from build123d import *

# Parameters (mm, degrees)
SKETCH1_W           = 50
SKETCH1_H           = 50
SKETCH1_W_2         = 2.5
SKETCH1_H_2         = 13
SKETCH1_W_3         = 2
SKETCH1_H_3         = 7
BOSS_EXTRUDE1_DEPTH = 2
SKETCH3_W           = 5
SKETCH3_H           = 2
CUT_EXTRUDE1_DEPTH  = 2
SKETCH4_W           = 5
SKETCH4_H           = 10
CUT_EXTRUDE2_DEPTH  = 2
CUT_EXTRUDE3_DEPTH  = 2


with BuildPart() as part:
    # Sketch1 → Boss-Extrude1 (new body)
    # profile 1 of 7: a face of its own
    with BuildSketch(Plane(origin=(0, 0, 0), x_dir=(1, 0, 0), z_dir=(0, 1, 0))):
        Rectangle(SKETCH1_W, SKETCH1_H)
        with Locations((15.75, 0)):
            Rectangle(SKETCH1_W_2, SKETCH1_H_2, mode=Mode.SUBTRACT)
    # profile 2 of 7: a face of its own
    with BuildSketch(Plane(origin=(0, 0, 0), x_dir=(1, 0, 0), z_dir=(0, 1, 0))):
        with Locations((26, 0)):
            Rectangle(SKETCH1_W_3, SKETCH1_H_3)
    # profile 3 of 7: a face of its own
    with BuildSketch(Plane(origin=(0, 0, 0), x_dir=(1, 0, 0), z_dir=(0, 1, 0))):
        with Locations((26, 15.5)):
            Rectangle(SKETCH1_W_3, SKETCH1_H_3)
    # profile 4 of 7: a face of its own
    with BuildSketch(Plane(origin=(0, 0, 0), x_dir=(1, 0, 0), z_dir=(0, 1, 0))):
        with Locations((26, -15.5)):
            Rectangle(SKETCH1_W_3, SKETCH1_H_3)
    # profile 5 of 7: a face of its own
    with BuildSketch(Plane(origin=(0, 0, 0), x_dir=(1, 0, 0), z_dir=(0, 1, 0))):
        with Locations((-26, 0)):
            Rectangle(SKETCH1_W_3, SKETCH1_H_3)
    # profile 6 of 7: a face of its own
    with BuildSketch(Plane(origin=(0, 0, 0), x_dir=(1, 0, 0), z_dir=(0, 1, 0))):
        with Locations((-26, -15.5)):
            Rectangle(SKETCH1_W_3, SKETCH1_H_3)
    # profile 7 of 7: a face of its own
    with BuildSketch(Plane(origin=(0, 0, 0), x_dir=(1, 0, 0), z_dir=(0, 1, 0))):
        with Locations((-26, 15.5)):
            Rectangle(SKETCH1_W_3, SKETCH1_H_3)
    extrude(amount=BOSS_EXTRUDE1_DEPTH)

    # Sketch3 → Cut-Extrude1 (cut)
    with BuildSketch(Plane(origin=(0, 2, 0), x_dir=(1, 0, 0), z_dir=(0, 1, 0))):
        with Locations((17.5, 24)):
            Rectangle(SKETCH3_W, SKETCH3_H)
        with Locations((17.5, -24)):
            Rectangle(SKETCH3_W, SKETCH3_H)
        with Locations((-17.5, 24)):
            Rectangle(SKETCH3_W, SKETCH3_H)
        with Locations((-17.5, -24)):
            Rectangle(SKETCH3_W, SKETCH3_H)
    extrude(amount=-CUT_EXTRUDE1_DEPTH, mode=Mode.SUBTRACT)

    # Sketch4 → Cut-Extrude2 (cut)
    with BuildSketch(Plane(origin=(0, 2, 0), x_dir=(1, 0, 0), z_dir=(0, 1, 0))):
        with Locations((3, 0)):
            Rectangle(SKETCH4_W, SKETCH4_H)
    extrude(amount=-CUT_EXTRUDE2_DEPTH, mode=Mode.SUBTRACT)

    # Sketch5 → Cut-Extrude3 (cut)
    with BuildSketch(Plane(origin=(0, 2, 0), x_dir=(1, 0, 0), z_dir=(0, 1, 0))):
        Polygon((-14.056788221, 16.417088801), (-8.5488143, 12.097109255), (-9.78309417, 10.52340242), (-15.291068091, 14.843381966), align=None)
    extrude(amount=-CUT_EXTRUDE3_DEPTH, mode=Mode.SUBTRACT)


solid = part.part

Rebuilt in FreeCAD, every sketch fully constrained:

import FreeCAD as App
import Part
import Sketcher

V = App.Vector
Q = App.Units.Quantity

doc = App.newDocument("Part")
params = doc.addObject("Spreadsheet::Sheet", "Params")
for row, (alias, value) in enumerate([
    ("sketch1_width", "50 mm"),
    ("sketch1_width2", "2 mm"),
    ("sketch1_height", "6 mm"),
    ("sketch1_height2", "7 mm"),
    ("sketch1_height3", "13 mm"),
    ("pad1_length", "2 mm"),
    ("sketch2_width", "5 mm"),
    ("sketch2_height", "2 mm"),
    ("pocket1_length", "2 mm"),
    ("sketch3_width", "5 mm"),
    ("sketch3_height", "10 mm"),
    ("pocket2_length", "2 mm"),
    ("sketch4_length", "7 mm"),
    ("sketch4_length2", "2 mm"),
    ("pocket3_length", "2 mm"),
], start=1):
    params.set(f"A{row}", alias)
    params.set(f"B{row}", "=" + value)
    params.setAlias(f"B{row}", alias)

body = doc.addObject("PartDesign::Body", "Body")

sketch1 = body.newObject("Sketcher::SketchObject", "Sketch")
sketch1.AttachmentSupport = (doc.getObject("XZ_Plane"), [""])
sketch1.MapMode = "FlatFace"
sketch1.addGeometry([
    Part.LineSegment(V(-25, 19, 0), V(-25, 25, 0)),
    Part.LineSegment(V(-25, 25, 0), V(25, 25, 0)),
    Part.LineSegment(V(25, 25, 0), V(25, 19, 0)),
    Part.LineSegment(V(25, 19, 0), V(27, 19, 0)),
    Part.LineSegment(V(27, 19, 0), V(27, 12, 0)),
    Part.LineSegment(V(27, 12, 0), V(25, 12, 0)),
    Part.LineSegment(V(25, 12, 0), V(25, 3.5, 0)),
    Part.LineSegment(V(25, 3.5, 0), V(27, 3.5, 0)),
    Part.LineSegment(V(27, 3.5, 0), V(27, -3.5, 0)),
    Part.LineSegment(V(27, -3.5, 0), V(25, -3.5, 0)),
    Part.LineSegment(V(25, -3.5, 0), V(25, -12, 0)),
    Part.LineSegment(V(25, -12, 0), V(27, -12, 0)),
    Part.LineSegment(V(27, -12, 0), V(27, -19, 0)),
    Part.LineSegment(V(27, -19, 0), V(25, -19, 0)),
    Part.LineSegment(V(25, -19, 0), V(25, -25, 0)),
    Part.LineSegment(V(25, -25, 0), V(-25, -25, 0)),
    Part.LineSegment(V(-25, -25, 0), V(-25, -19, 0)),
    Part.LineSegment(V(-25, -19, 0), V(-27, -19, 0)),
    Part.LineSegment(V(-27, -19, 0), V(-27, -12, 0)),
    Part.LineSegment(V(-27, -12, 0), V(-25, -12, 0)),
    Part.LineSegment(V(-25, -12, 0), V(-25, -3.5, 0)),
    Part.LineSegment(V(-25, -3.5, 0), V(-27, -3.5, 0)),
    Part.LineSegment(V(-27, -3.5, 0), V(-27, 3.5, 0)),
    Part.LineSegment(V(-27, 3.5, 0), V(-25, 3.5, 0)),
    Part.LineSegment(V(-25, 3.5, 0), V(-25, 12, 0)),
    Part.LineSegment(V(-25, 12, 0), V(-27, 12, 0)),
    Part.LineSegment(V(-27, 12, 0), V(-27, 19, 0)),
    Part.LineSegment(V(-27, 19, 0), V(-25, 19, 0)),
    Part.LineSegment(V(17, 6.5, 0), V(14.5, 6.5, 0)),
    Part.LineSegment(V(14.5, 6.5, 0), V(14.5, -6.5, 0)),
    Part.LineSegment(V(14.5, -6.5, 0), V(17, -6.5, 0)),
    Part.LineSegment(V(17, -6.5, 0), V(17, 6.5, 0)),
], False)
sketch1.addConstraint([
    Sketcher.Constraint("Coincident", 0, 2, 1, 1),
    Sketcher.Constraint("Coincident", 1, 2, 2, 1),
    Sketcher.Constraint("Coincident", 2, 2, 3, 1),
    Sketcher.Constraint("Coincident", 3, 2, 4, 1),
    Sketcher.Constraint("Coincident", 4, 2, 5, 1),
    Sketcher.Constraint("Coincident", 5, 2, 6, 1),
    Sketcher.Constraint("Coincident", 6, 2, 7, 1),
    Sketcher.Constraint("Coincident", 7, 2, 8, 1),
    Sketcher.Constraint("Coincident", 8, 2, 9, 1),
    Sketcher.Constraint("Coincident", 9, 2, 10, 1),
    Sketcher.Constraint("Coincident", 10, 2, 11, 1),
    Sketcher.Constraint("Coincident", 11, 2, 12, 1),
    Sketcher.Constraint("Coincident", 12, 2, 13, 1),
    Sketcher.Constraint("Coincident", 13, 2, 14, 1),
    Sketcher.Constraint("Coincident", 14, 2, 15, 1),
    Sketcher.Constraint("Coincident", 15, 2, 16, 1),
    Sketcher.Constraint("Coincident", 16, 2, 17, 1),
    Sketcher.Constraint("Coincident", 17, 2, 18, 1),
    Sketcher.Constraint("Coincident", 18, 2, 19, 1),
    Sketcher.Constraint("Coincident", 19, 2, 20, 1),
    Sketcher.Constraint("Coincident", 20, 2, 21, 1),
    Sketcher.Constraint("Coincident", 21, 2, 22, 1),
    Sketcher.Constraint("Coincident", 22, 2, 23, 1),
    Sketcher.Constraint("Coincident", 23, 2, 24, 1),
    Sketcher.Constraint("Coincident", 24, 2, 25, 1),
    Sketcher.Constraint("Coincident", 25, 2, 26, 1),
    Sketcher.Constraint("Coincident", 26, 2, 27, 1),
    Sketcher.Constraint("Coincident", 27, 2, 0, 1),
    Sketcher.Constraint("Coincident", 28, 2, 29, 1),
    Sketcher.Constraint("Coincident", 29, 2, 30, 1),
    Sketcher.Constraint("Coincident", 30, 2, 31, 1),
    Sketcher.Constraint("Coincident", 31, 2, 28, 1),
    Sketcher.Constraint("Vertical", 0),
    Sketcher.Constraint("Horizontal", 1),
    Sketcher.Constraint("Vertical", 2),
    Sketcher.Constraint("Horizontal", 3),
    Sketcher.Constraint("Vertical", 4),
    Sketcher.Constraint("Horizontal", 5),
    Sketcher.Constraint("Vertical", 6),
    Sketcher.Constraint("Horizontal", 7),
    Sketcher.Constraint("Vertical", 8),
    Sketcher.Constraint("Horizontal", 9),
    Sketcher.Constraint("Vertical", 10),
    Sketcher.Constraint("Horizontal", 11),
    Sketcher.Constraint("Vertical", 12),
    Sketcher.Constraint("Horizontal", 13),
    Sketcher.Constraint("Vertical", 14),
    Sketcher.Constraint("Horizontal", 15),
    Sketcher.Constraint("Vertical", 16),
    Sketcher.Constraint("Horizontal", 17),
    Sketcher.Constraint("Vertical", 18),
    Sketcher.Constraint("Horizontal", 19),
    Sketcher.Constraint("Vertical", 20),
    Sketcher.Constraint("Horizontal", 21),
    Sketcher.Constraint("Vertical", 22),
    Sketcher.Constraint("Horizontal", 23),
    Sketcher.Constraint("Vertical", 24),
    Sketcher.Constraint("Horizontal", 25),
    Sketcher.Constraint("Vertical", 26),
    Sketcher.Constraint("Horizontal", 27),
    Sketcher.Constraint("Horizontal", 28),
    Sketcher.Constraint("Vertical", 29),
    Sketcher.Constraint("Horizontal", 30),
    Sketcher.Constraint("Vertical", 31),
    Sketcher.Constraint("Symmetric", 0, 2, 14, 2, -1, 1),
    Sketcher.Constraint("Symmetric", 2, 2, 16, 2, -1, 1),
    Sketcher.Constraint("Symmetric", 4, 2, 18, 2, -1, 1),
    Sketcher.Constraint("Symmetric", 6, 2, 20, 2, -1, 1),
    Sketcher.Constraint("Symmetric", 8, 2, 22, 2, -1, 1),
    Sketcher.Constraint("Symmetric", 10, 2, 24, 2, -1, 1),
    Sketcher.Constraint("Symmetric", 12, 2, 26, 2, -1, 1),
    Sketcher.Constraint("Symmetric", 13, 2, 16, 2, -2),
    Sketcher.Constraint("Symmetric", 11, 2, 18, 2, -2),
    Sketcher.Constraint("Symmetric", 9, 2, 20, 2, -2),
    Sketcher.Constraint("Vertical", 2, 2, 5, 2),
    Sketcher.Constraint("Vertical", 4, 2, 7, 2),
    Sketcher.Constraint("Equal", 4, 8),
    Sketcher.Constraint("DistanceX", 1, 1, 1, 2, Q("50 mm")),
    Sketcher.Constraint("DistanceX", 3, 1, 3, 2, Q("2 mm")),
    Sketcher.Constraint("DistanceY", 0, 1, 0, 2, Q("6 mm")),
    Sketcher.Constraint("DistanceY", 4, 2, 4, 1, Q("7 mm")),
    Sketcher.Constraint("DistanceY", 29, 2, 29, 1, Q("13 mm")),
    Sketcher.Constraint("DistanceX", 28, 2, 28, 1, Q("2.5 mm")),
    Sketcher.Constraint("DistanceY", 6, 2, 6, 1, Q("8.5 mm")),
    Sketcher.Constraint("DistanceX", -1, 1, 30, 2, Q("17 mm")),
    Sketcher.Constraint("DistanceY", 6, 2, 28, 2, Q("3 mm")),
])
sketch1.setExpression("Constraints[77]", "Params.sketch1_width")
sketch1.setExpression("Constraints[78]", "Params.sketch1_width2")
sketch1.setExpression("Constraints[79]", "Params.sketch1_height")
sketch1.setExpression("Constraints[80]", "Params.sketch1_height2")
sketch1.setExpression("Constraints[81]", "Params.sketch1_height3")
pad1 = body.newObject("PartDesign::Pad", "Pad")
pad1.Profile = sketch1
pad1.setExpression("Length", "Params.pad1_length")
pad1.Reversed = True

sketch2 = body.newObject("Sketcher::SketchObject", "Sketch001")
sketch2.AttachmentSupport = (doc.getObject("XZ_Plane"), [""])
sketch2.MapMode = "FlatFace"
sketch2.AttachmentOffset = App.Placement(V(0, 0, -2), App.Rotation())
sketch2.addGeometry([
    Part.LineSegment(V(15, -25, 0), V(15, -23, 0)),
    Part.LineSegment(V(15, -23, 0), V(20, -23, 0)),
    Part.LineSegment(V(20, -23, 0), V(20, -25, 0)),
    Part.LineSegment(V(20, -25, 0), V(15, -25, 0)),
    Part.LineSegment(V(15, 23, 0), V(15, 25, 0)),
    Part.LineSegment(V(15, 25, 0), V(20, 25, 0)),
    Part.LineSegment(V(20, 25, 0), V(20, 23, 0)),
    Part.LineSegment(V(20, 23, 0), V(15, 23, 0)),
    Part.LineSegment(V(-20, -25, 0), V(-20, -23, 0)),
    Part.LineSegment(V(-20, -23, 0), V(-15, -23, 0)),
    Part.LineSegment(V(-15, -23, 0), V(-15, -25, 0)),
    Part.LineSegment(V(-15, -25, 0), V(-20, -25, 0)),
    Part.LineSegment(V(-20, 23, 0), V(-20, 25, 0)),
    Part.LineSegment(V(-20, 25, 0), V(-15, 25, 0)),
    Part.LineSegment(V(-15, 25, 0), V(-15, 23, 0)),
    Part.LineSegment(V(-15, 23, 0), V(-20, 23, 0)),
], False)
sketch2.addConstraint([
    Sketcher.Constraint("Coincident", 0, 2, 1, 1),
    Sketcher.Constraint("Coincident", 1, 2, 2, 1),
    Sketcher.Constraint("Coincident", 2, 2, 3, 1),
    Sketcher.Constraint("Coincident", 3, 2, 0, 1),
    Sketcher.Constraint("Coincident", 4, 2, 5, 1),
    Sketcher.Constraint("Coincident", 5, 2, 6, 1),
    Sketcher.Constraint("Coincident", 6, 2, 7, 1),
    Sketcher.Constraint("Coincident", 7, 2, 4, 1),
    Sketcher.Constraint("Coincident", 8, 2, 9, 1),
    Sketcher.Constraint("Coincident", 9, 2, 10, 1),
    Sketcher.Constraint("Coincident", 10, 2, 11, 1),
    Sketcher.Constraint("Coincident", 11, 2, 8, 1),
    Sketcher.Constraint("Coincident", 12, 2, 13, 1),
    Sketcher.Constraint("Coincident", 13, 2, 14, 1),
    Sketcher.Constraint("Coincident", 14, 2, 15, 1),
    Sketcher.Constraint("Coincident", 15, 2, 12, 1),
    Sketcher.Constraint("Vertical", 0),
    Sketcher.Constraint("Horizontal", 1),
    Sketcher.Constraint("Vertical", 2),
    Sketcher.Constraint("Horizontal", 3),
    Sketcher.Constraint("Vertical", 4),
    Sketcher.Constraint("Horizontal", 5),
    Sketcher.Constraint("Vertical", 6),
    Sketcher.Constraint("Horizontal", 7),
    Sketcher.Constraint("Vertical", 8),
    Sketcher.Constraint("Horizontal", 9),
    Sketcher.Constraint("Vertical", 10),
    Sketcher.Constraint("Horizontal", 11),
    Sketcher.Constraint("Vertical", 12),
    Sketcher.Constraint("Horizontal", 13),
    Sketcher.Constraint("Vertical", 14),
    Sketcher.Constraint("Horizontal", 15),
    Sketcher.Constraint("Symmetric", 6, 2, 8, 2, -1, 1),
    Sketcher.Constraint("Symmetric", 4, 2, 10, 2, -1, 1),
    Sketcher.Constraint("Symmetric", 2, 2, 12, 2, -1, 1),
    Sketcher.Constraint("Symmetric", 0, 2, 14, 2, -1, 1),
    Sketcher.Constraint("Symmetric", 1, 2, 8, 2, -2),
    Sketcher.Constraint("Symmetric", 3, 2, 10, 2, -2),
    Sketcher.Constraint("DistanceX", 1, 1, 1, 2, Q("5 mm")),
    Sketcher.Constraint("DistanceY", 0, 1, 0, 2, Q("2 mm")),
    Sketcher.Constraint("DistanceX", -1, 1, 0, 2, Q("15 mm")),
    Sketcher.Constraint("DistanceY", 0, 2, -1, 1, Q("23 mm")),
])
sketch2.setExpression("Constraints[38]", "Params.sketch2_width")
sketch2.setExpression("Constraints[39]", "Params.sketch2_height")
pocket1 = body.newObject("PartDesign::Pocket", "Pocket")
pocket1.Profile = sketch2
pocket1.setExpression("Length", "Params.pocket1_length")
pocket1.Reversed = True

sketch3 = body.newObject("Sketcher::SketchObject", "Sketch002")
sketch3.AttachmentSupport = (doc.getObject("XZ_Plane"), [""])
sketch3.MapMode = "FlatFace"
sketch3.AttachmentOffset = App.Placement(V(0, 0, -2), App.Rotation())
sketch3.addGeometry([
    Part.LineSegment(V(0, -5, 0), V(0, 5, 0)),
    Part.LineSegment(V(0, 5, 0), V(6, 5, 0)),
    Part.LineSegment(V(6, 5, 0), V(6, -5, 0)),
    Part.LineSegment(V(6, -5, 0), V(0, -5, 0)),
], False)
sketch3.addConstraint([
    Sketcher.Constraint("Coincident", 0, 2, 1, 1),
    Sketcher.Constraint("Coincident", 1, 2, 2, 1),
    Sketcher.Constraint("Coincident", 2, 2, 3, 1),
    Sketcher.Constraint("Coincident", 3, 2, 0, 1),
    Sketcher.Constraint("Vertical", 0),
    Sketcher.Constraint("Horizontal", 1),
    Sketcher.Constraint("Vertical", 2),
    Sketcher.Constraint("Horizontal", 3),
    Sketcher.Constraint("DistanceX", 1, 1, 1, 2, Q("5 mm")),
    Sketcher.Constraint("DistanceY", 0, 1, 0, 2, Q("10 mm")),
    Sketcher.Constraint("DistanceY", -1, 1, 0, 2, Q("5 mm")),
    Sketcher.Constraint("DistanceX", -1, 1, 0, 2, Q("0.5 mm")),
])
sketch3.setExpression("Constraints[8]", "Params.sketch3_width")
sketch3.setExpression("Constraints[9]", "Params.sketch3_height")
pocket2 = body.newObject("PartDesign::Pocket", "Pocket001")
pocket2.Profile = sketch3
pocket2.setExpression("Length", "Params.pocket2_length")
pocket2.Reversed = True

sketch4 = body.newObject("Sketcher::SketchObject", "Sketch003")
sketch4.AttachmentSupport = (doc.getObject("XZ_Plane"), [""])
sketch4.MapMode = "FlatFace"
sketch4.AttachmentOffset = App.Placement(V(0, 0, -2), App.Rotation())
sketch4.addGeometry([
    Part.LineSegment(V(-8.5, -12.1, 0), V(-14.1, -16.4, 0)),
    Part.LineSegment(V(-14.1, -16.4, 0), V(-15.3, -14.8, 0)),
    Part.LineSegment(V(-15.3, -14.8, 0), V(-9.8, -10.5, 0)),
    Part.LineSegment(V(-9.8, -10.5, 0), V(-8.5, -12.1, 0)),
], False)
sketch4.addConstraint([
    Sketcher.Constraint("Coincident", 0, 2, 1, 1),
    Sketcher.Constraint("Coincident", 1, 2, 2, 1),
    Sketcher.Constraint("Coincident", 2, 2, 3, 1),
    Sketcher.Constraint("Coincident", 3, 2, 0, 1),
    Sketcher.Constraint("Perpendicular", 0, 1),
    Sketcher.Constraint("Perpendicular", 1, 2),
    Sketcher.Constraint("Perpendicular", 2, 3),
    Sketcher.Constraint("Distance", 0, Q("7 mm")),
    Sketcher.Constraint("Distance", 1, Q("2 mm")),
    Sketcher.Constraint("DistanceX", 0, 2, -1, 1, Q("14.056788 mm")),
    Sketcher.Constraint("DistanceY", 0, 2, -1, 1, Q("16.417089 mm")),
    Sketcher.Constraint("DistanceX", 1, 2, -1, 1, Q("15.291068 mm")),
])
sketch4.setExpression("Constraints[7]", "Params.sketch4_length")
sketch4.setExpression("Constraints[8]", "Params.sketch4_length2")
pocket3 = body.newObject("PartDesign::Pocket", "Pocket002")
pocket3.Profile = sketch4
pocket3.setExpression("Length", "Params.pocket3_length")
pocket3.Reversed = True

doc.recompute()
